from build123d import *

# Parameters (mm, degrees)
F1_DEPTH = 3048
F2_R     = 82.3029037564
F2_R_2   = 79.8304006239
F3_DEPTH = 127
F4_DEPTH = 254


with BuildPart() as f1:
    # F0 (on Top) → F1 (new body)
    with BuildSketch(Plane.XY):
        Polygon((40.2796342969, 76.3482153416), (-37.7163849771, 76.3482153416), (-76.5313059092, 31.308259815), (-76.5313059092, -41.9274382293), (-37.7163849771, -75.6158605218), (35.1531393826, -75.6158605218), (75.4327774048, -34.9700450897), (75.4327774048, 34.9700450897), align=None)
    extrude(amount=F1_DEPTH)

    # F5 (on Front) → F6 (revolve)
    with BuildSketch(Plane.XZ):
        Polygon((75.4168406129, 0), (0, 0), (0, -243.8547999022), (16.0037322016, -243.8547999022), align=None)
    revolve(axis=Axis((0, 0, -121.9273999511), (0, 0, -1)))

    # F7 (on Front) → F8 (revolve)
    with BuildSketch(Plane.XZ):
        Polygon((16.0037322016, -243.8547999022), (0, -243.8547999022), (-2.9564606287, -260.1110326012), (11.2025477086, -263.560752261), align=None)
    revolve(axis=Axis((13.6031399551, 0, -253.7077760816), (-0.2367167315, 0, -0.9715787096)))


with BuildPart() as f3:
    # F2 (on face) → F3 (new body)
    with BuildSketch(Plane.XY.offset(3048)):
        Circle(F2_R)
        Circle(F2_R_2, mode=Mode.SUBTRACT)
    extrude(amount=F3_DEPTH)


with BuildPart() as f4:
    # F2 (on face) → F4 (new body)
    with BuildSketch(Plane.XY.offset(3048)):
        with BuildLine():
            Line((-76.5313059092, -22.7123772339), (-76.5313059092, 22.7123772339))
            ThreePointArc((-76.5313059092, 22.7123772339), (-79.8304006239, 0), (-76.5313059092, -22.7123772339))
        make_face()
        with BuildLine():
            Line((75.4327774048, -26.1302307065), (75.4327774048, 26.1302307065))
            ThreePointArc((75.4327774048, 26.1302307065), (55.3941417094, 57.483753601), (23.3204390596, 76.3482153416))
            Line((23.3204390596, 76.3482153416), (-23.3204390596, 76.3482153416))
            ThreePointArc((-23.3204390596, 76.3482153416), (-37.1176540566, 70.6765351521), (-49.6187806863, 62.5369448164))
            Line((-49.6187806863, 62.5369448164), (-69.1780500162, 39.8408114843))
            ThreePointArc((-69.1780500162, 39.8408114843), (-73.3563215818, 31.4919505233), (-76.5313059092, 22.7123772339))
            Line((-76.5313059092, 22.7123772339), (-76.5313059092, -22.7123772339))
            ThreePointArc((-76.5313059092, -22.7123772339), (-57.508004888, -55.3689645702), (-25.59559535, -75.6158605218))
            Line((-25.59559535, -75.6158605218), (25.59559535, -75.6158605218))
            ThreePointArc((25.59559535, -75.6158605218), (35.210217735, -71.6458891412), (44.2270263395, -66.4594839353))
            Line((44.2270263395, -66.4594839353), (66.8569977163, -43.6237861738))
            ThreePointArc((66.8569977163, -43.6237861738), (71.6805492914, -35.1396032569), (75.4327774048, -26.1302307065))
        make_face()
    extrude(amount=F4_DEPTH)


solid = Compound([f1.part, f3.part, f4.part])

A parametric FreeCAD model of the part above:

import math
import FreeCAD as App
import Part
import Sketcher

V = App.Vector
Q = App.Units.Quantity


def add_polygon(sketch, points):
    """Adds a closed chain of lines whose ends are joined by coincident constraints."""
    first, n = sketch.GeometryCount, len(points)
    for a, b in zip(points, points[1:] + points[:1]):
        sketch.addGeometry(Part.LineSegment(App.Vector(*a, 0), App.Vector(*b, 0)), False)
    for i in range(n):
        sketch.addConstraint(Sketcher.Constraint("Coincident", first + i, 2, first + (i + 1) % n, 1))

doc = App.newDocument("Part")
body = doc.addObject("PartDesign::Body", "Body")
body.AllowCompound = True

# Sketch on XY plane
sketch1 = body.newObject("Sketcher::SketchObject", "Sketch")
sketch1.AttachmentSupport = (doc.getObject("XY_Plane"), [""])
sketch1.MapMode = "FlatFace"
add_polygon(sketch1, [(40, 76), (-38, 76), (-77, 31), (-77, -42), (-38, -76), (35, -76), (75, -35), (75, 35)])  # lines 0-7
sketch1.addConstraint([
    Sketcher.Constraint("Horizontal", 0),
    Sketcher.Constraint("Vertical", 2),
    Sketcher.Constraint("Horizontal", 4),
    Sketcher.Constraint("Vertical", 6),
    Sketcher.Constraint("Vertical", 0, 2, 3, 2),
    Sketcher.Constraint("DistanceY", 2, 2, 2, 1, 73.235698),
    Sketcher.Constraint("Distance", 3, 51.395602),
    Sketcher.Constraint("DistanceX", 0, 2, 0, 1, 77.996019),
    Sketcher.Constraint("DistanceY", 6, 1, 6, 2, 69.94009),
    Sketcher.Constraint("Distance", 1, 59.457512),
    Sketcher.Constraint("DistanceX", 4, 1, 4, 2, 72.869524),
    Sketcher.Constraint("DistanceY", -1, 1, 1, 2, 31.30826),
    Sketcher.Constraint("DistanceY", 3, 2, -1, 1, 75.615861),
    Sketcher.Constraint("DistanceX", -1, 1, 4, 2, 35.153139),
    Sketcher.Constraint("DistanceX", 4, 2, 5, 2, 40.279638),
    Sketcher.Constraint("DistanceY", 5, 2, 0, 2, 111.31826),
])
pad1 = body.newObject("PartDesign::Pad", "Pad")
pad1.Profile = sketch1
pad1.Length = Q("120 in")

# Sketch on XZ plane
sketch2 = body.newObject("Sketcher::SketchObject", "Sketch001")
sketch2.AttachmentSupport = (doc.getObject("XZ_Plane"), [""])
sketch2.MapMode = "FlatFace"
add_polygon(sketch2, [(75, 0), (0, 0), (0, -244), (16, -244)])  # lines 0-3
sketch2.addConstraint([
    Sketcher.Constraint("Horizontal", 0),
    Sketcher.Constraint("Vertical", 1),
    Sketcher.Constraint("Horizontal", 2),
    Sketcher.Constraint("Coincident", 0, 2, -1, 1),
    Sketcher.Constraint("DistanceY", 1, 2, 1, 1, 243.8548),
    Sketcher.Constraint("DistanceX", 0, 2, 0, 1, 75.416841),
    Sketcher.Constraint("Distance", 3, 250.988209),
])
revolution = body.newObject("PartDesign::Revolution", "Revolution")
revolution.Profile = sketch2
revolution.ReferenceAxis = (sketch2, ["V_Axis"])
revolution.Angle = 360

# Sketch on XZ plane
sketch3 = body.newObject("Sketcher::SketchObject", "Sketch002")
sketch3.AttachmentSupport = (doc.getObject("XZ_Plane"), [""])
sketch3.MapMode = "FlatFace"
add_polygon(sketch3, [(16, -244), (0, -244), (-3, -260), (11, -264)])  # lines 0-3
sketch3.addGeometry(Part.LineSegment(V(16, -244, 0), V(11, -264, 0)), True)  # axis
sketch3.addConstraint([
    Sketcher.Constraint("Horizontal", 0),
    Sketcher.Constraint("Coincident", 4, 1, 3, 2),
    Sketcher.Constraint("Coincident", 4, 2, 2, 2),
    Sketcher.Constraint("PointOnObject", 0, 2, -2),
    Sketcher.Constraint("Perpendicular", 2, 3),
    Sketcher.Constraint("DistanceY", 0, 2, -1, 1, 243.8548),
    Sketcher.Constraint("DistanceX", 0, 2, 0, 1, 16.003732),
    Sketcher.Constraint("DistanceX", 1, 2, -1, 1, 2.956461),
    Sketcher.Constraint("DistanceX", 1, 2, 2, 2, 14.159008),
    Sketcher.Constraint("DistanceY", 2, 2, 1, 2, 3.44972),
])
revolution2 = body.newObject("PartDesign::Revolution", "Revolution001")
revolution2.Profile = sketch3
revolution2.ReferenceAxis = (sketch3, ["Axis0"])
revolution2.Angle = 360
body2 = doc.addObject("PartDesign::Body", "Body001")

# Sketch on XY plane
sketch4 = body2.newObject("Sketcher::SketchObject", "Sketch003")
sketch4.AttachmentSupport = (doc.getObject("XY_Plane001"), [""])
sketch4.MapMode = "FlatFace"
sketch4.AttachmentOffset = App.Placement(V(0, 0, 120 * 25.4), App.Rotation())
sketch4.addGeometry([
    Part.Circle(V(0, 0, 0), V(0, 0, 1), 82),
    Part.Circle(V(0, 0, 0), V(0, 0, 1), 80),
], False)
sketch4.addConstraint([
    Sketcher.Constraint("Coincident", 0, 3, -1, 1),
    Sketcher.Constraint("Coincident", 1, 3, -1, 1),
    Sketcher.Constraint("Diameter", 1, 159.660801),
    Sketcher.Constraint("Diameter", 0, 164.605808),
])
pad2 = body2.newObject("PartDesign::Pad", "Pad001")
pad2.Profile = sketch4
pad2.Length = Q("5 in")
body3 = doc.addObject("PartDesign::Body", "Body002")

# Sketch on XY plane
sketch5 = body3.newObject("Sketcher::SketchObject", "Sketch004")
sketch5.AttachmentSupport = (doc.getObject("XY_Plane002"), [""])
sketch5.MapMode = "FlatFace"
sketch5.AttachmentOffset = App.Placement(V(0, 0, 120 * 25.4), App.Rotation())
sketch5.addGeometry([
    Part.ArcOfCircle(Part.Circle(V(0, 0, 0), V(0, 0, 1), 80), math.radians(163), math.radians(197)),  # 0
    Part.ArcOfCircle(Part.Circle(V(0, 0, 0), V(0, 0, 1), 80), math.radians(-163), math.radians(-109)),  # 1
    Part.LineSegment(V(-26, -76, 0), V(26, -76, 0)),  # 2
    Part.ArcOfCircle(Part.Circle(V(0, 0, 0), V(0, 0, 1), 80), math.radians(-71.3), math.radians(-56.36)),  # 3
    Part.LineSegment(V(44, -66, 0), V(67, -44, 0)),  # 4
    Part.ArcOfCircle(Part.Circle(V(0, 0, 0), V(0, 0, 1), 80), math.radians(-33.12), math.radians(-19.11)),  # 5
    Part.LineSegment(V(75, -26, 0), V(75, 26, 0)),  # 6
    Part.ArcOfCircle(Part.Circle(V(0, 0, 0), V(0, 0, 1), 80), math.radians(19), math.radians(73)),  # 7
    Part.LineSegment(V(23, 76, 0), V(-23, 76, 0)),  # 8
    Part.ArcOfCircle(Part.Circle(V(0, 0, 0), V(0, 0, 1), 80), math.radians(107), math.radians(128)),  # 9
    Part.LineSegment(V(-50, 63, 0), V(-69, 40, 0)),  # 10
    Part.ArcOfCircle(Part.Circle(V(0, 0, 0), V(0, 0, 1), 80), math.radians(150.06), math.radians(163.47)),  # 11
], False)
sketch5.addConstraint([
    Sketcher.Constraint("Tangent", 0, 2, 1, 1),
    Sketcher.Constraint("Coincident", 1, 2, 2, 1),
    Sketcher.Constraint("Coincident", 2, 2, 3, 1),
    Sketcher.Constraint("Coincident", 3, 2, 4, 1),
    Sketcher.Constraint("Coincident", 4, 2, 5, 1),
    Sketcher.Constraint("Coincident", 5, 2, 6, 1),
    Sketcher.Constraint("Coincident", 6, 2, 7, 1),
    Sketcher.Constraint("Coincident", 7, 2, 8, 1),
    Sketcher.Constraint("Coincident", 8, 2, 9, 1),
    Sketcher.Constraint("Coincident", 9, 2, 10, 1),
    Sketcher.Constraint("Coincident", 10, 2, 11, 1),
    Sketcher.Constraint("Tangent", 11, 2, 0, 1),
    Sketcher.Constraint("Horizontal", 2),
    Sketcher.Constraint("Vertical", 6),
    Sketcher.Constraint("Horizontal", 8),
    Sketcher.Constraint("Coincident", 0, 3, -1, 1),
    Sketcher.Constraint("Coincident", 3, 3, -1, 1),
    Sketcher.Constraint("Coincident", 5, 3, -1, 1),
    Sketcher.Constraint("Coincident", 7, 3, -1, 1),
    Sketcher.Constraint("Coincident", 9, 3, -1, 1),
    Sketcher.Constraint("Equal", 0, 1),
    Sketcher.Constraint("Equal", 1, 3),
    Sketcher.Constraint("Equal", 3, 5),
    Sketcher.Constraint("Equal", 5, 7),
    Sketcher.Constraint("Equal", 7, 9),
    Sketcher.Constraint("Equal", 9, 11),
    Sketcher.Constraint("Vertical", 0, 2, 11, 2),
    Sketcher.Constraint("Radius", 0, 79.830401),
    Sketcher.Constraint("Distance", 10, 29.9613),
    Sketcher.Constraint("DistanceX", 2, 1, 2, 2, 51.191191),
    Sketcher.Constraint("DistanceX", 8, 2, 8, 1, 46.640878),
    Sketcher.Constraint("DistanceY", 6, 1, 6, 2, 52.260461),
    Sketcher.Constraint("DistanceX", 9, 2, -1, 1, 49.618781),
    Sketcher.Constraint("DistanceX", 0, 2, 1, 2, 50.935711),
    Sketcher.Constraint("DistanceX", 2, 2, 3, 2, 18.631431),
    Sketcher.Constraint("DistanceX", 3, 2, 4, 2, 22.629971),
])
pad3 = body3.newObject("PartDesign::Pad", "Pad002")
pad3.Profile = sketch5
pad3.Length = Q("10 in")

doc.recompute()
